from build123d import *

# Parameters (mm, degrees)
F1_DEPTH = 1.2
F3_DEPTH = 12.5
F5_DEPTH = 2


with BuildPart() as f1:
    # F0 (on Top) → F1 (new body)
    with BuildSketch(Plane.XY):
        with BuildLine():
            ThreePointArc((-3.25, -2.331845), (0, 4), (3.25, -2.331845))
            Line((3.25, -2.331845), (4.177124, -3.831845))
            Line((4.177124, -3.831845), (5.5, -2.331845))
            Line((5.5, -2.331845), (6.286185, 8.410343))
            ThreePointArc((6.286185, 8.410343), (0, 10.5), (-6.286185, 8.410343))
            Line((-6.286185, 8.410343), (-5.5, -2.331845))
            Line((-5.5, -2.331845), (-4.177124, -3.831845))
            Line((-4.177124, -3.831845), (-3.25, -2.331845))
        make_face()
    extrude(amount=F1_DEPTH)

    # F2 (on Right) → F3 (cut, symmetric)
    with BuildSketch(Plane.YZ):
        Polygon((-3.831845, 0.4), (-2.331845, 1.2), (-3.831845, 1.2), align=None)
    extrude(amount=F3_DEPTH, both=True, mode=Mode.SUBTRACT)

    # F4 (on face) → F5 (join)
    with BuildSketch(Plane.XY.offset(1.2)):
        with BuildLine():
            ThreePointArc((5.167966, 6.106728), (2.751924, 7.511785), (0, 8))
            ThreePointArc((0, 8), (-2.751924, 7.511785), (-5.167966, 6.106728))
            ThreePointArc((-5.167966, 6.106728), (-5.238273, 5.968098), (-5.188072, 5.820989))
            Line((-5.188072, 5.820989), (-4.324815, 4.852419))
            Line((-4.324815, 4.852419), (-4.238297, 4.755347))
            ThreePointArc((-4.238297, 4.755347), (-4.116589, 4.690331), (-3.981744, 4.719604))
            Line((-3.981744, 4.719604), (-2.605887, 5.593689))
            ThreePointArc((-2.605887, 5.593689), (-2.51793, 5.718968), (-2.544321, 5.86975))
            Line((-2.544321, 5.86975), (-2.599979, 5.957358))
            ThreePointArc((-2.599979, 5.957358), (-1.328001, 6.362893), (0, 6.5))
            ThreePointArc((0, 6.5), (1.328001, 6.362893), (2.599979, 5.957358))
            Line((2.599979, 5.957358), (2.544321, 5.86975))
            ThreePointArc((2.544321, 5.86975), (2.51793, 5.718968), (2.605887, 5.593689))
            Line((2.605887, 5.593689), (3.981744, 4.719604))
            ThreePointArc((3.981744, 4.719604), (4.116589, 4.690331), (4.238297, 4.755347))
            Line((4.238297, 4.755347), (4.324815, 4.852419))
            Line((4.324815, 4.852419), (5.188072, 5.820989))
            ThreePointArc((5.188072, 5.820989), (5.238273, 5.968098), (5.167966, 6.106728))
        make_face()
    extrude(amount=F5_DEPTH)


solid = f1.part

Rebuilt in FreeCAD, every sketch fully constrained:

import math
import FreeCAD as App
import Part
import Sketcher
Q = App.Units.Quantity


def add_polygon(sketch, points):
    """Adds a closed chain of lines whose ends are joined by coincident constraints."""
    first, n = sketch.GeometryCount, len(points)
    for a, b in zip(points, points[1:] + points[:1]):
        sketch.addGeometry(Part.LineSegment(App.Vector(*a, 0), App.Vector(*b, 0)), False)
    for i in range(n):
        sketch.addConstraint(Sketcher.Constraint("Coincident", first + i, 2, first + (i + 1) % n, 1))

doc = App.newDocument("Part")
params = doc.addObject("Spreadsheet::Sheet", "Params")
for row, (alias, value) in enumerate([
    ("sketch1_radius", "4 mm"),
    ("sketch1_length", "2 mm"),
    ("pad1_length", "1.2 mm"),
    ("sketch2_width", "1.5 mm"),
    ("sketch2_height", "0.8 mm"),
    ("pocket1_length", "25 mm"),
    ("sketch3_radius", "8 mm"),
    ("sketch3_radius2", "0.200001 mm"),
    ("pad2_length", "2 mm"),
], start=1):
    params.set(f"A{row}", alias)
    params.set(f"B{row}", "=" + value)
    params.setAlias(f"B{row}", alias)

body = doc.addObject("PartDesign::Body", "Body")

sketch1 = doc.addObject("Sketcher::SketchObject", "Sketch")
body.addObject(sketch1)
sketch1.AttachmentSupport = (doc.XY_Plane, [""])
sketch1.MapMode = "FlatFace"
sketch1.addGeometry(Part.ArcOfCircle(Part.Circle(App.Vector(0, 0, 0), App.Vector(0, 0, 1), 4), math.radians(-36), math.radians(216)), False)
sketch1.addGeometry(Part.LineSegment(App.Vector(3.2, -2.3, 0), App.Vector(4.2, -3.8, 0)), False)
sketch1.addGeometry(Part.LineSegment(App.Vector(4.2, -3.8, 0), App.Vector(5.5, -2.3, 0)), False)
sketch1.addGeometry(Part.LineSegment(App.Vector(5.5, -2.3, 0), App.Vector(6.3, 8.4, 0)), False)
sketch1.addGeometry(Part.ArcOfCircle(Part.Circle(App.Vector(0, 0, 0), App.Vector(0, 0, 1), 10.5), math.radians(53), math.radians(127)), False)
sketch1.addGeometry(Part.LineSegment(App.Vector(-6.3, 8.4, 0), App.Vector(-5.5, -2.3, 0)), False)
sketch1.addGeometry(Part.LineSegment(App.Vector(-5.5, -2.3, 0), App.Vector(-4.2, -3.8, 0)), False)
sketch1.addGeometry(Part.LineSegment(App.Vector(-4.2, -3.8, 0), App.Vector(-3.2, -2.3, 0)), False)
sketch1.addConstraint(Sketcher.Constraint("Coincident", 0, 1, 1, 1))
sketch1.addConstraint(Sketcher.Constraint("Coincident", 1, 2, 2, 1))
sketch1.addConstraint(Sketcher.Constraint("Coincident", 2, 2, 3, 1))
sketch1.addConstraint(Sketcher.Constraint("Coincident", 3, 2, 4, 1))
sketch1.addConstraint(Sketcher.Constraint("Coincident", 4, 2, 5, 1))
sketch1.addConstraint(Sketcher.Constraint("Coincident", 5, 2, 6, 1))
sketch1.addConstraint(Sketcher.Constraint("Coincident", 6, 2, 7, 1))
sketch1.addConstraint(Sketcher.Constraint("Coincident", 7, 2, 0, 2))
sketch1.addConstraint(Sketcher.Constraint("Coincident", 0, 3, -1, 1))
sketch1.addConstraint(Sketcher.Constraint("Coincident", 4, 3, -1, 1))
sketch1.addConstraint(Sketcher.Constraint("Symmetric", 2, 2, 5, 2, -2))
sketch1.addConstraint(Sketcher.Constraint("Symmetric", 1, 2, 6, 2, -2))
sketch1.addConstraint(Sketcher.Constraint("Horizontal", 0, 1, 2, 2))
sketch1.addConstraint(Sketcher.Constraint("Horizontal", 3, 2, 4, 2))
sketch1.addConstraint(Sketcher.Constraint("Horizontal", 5, 2, 7, 2))
sketch1.addConstraint(Sketcher.Constraint("Radius", 0, Q("4 mm")))
sketch1.addConstraint(Sketcher.Constraint("Distance", 2, Q("2 mm")))
sketch1.addConstraint(Sketcher.Constraint("DistanceX", -1, 1, 2, 2, Q("5.5 mm")))
sketch1.addConstraint(Sketcher.Constraint("DistanceY", 1, 2, 0, 1, Q("1.5 mm")))
sketch1.addConstraint(Sketcher.Constraint("DistanceX", 7, 2, 0, 1, Q("6.5 mm")))
sketch1.addConstraint(Sketcher.Constraint("Radius", 4, Q("10.499998 mm")))
sketch1.addConstraint(Sketcher.Constraint("Distance", 3, Q("10.770919 mm")))
sketch1.setExpression("Constraints[15]", "Params.sketch1_radius")
sketch1.setExpression("Constraints[16]", "Params.sketch1_length")
pad1 = doc.addObject("PartDesign::Pad", "Pad")
body.addObject(pad1)
pad1.Profile = sketch1
pad1.setExpression("Length", "Params.pad1_length")

sketch2 = doc.addObject("Sketcher::SketchObject", "Sketch001")
body.addObject(sketch2)
sketch2.AttachmentSupport = (doc.YZ_Plane, [""])
sketch2.MapMode = "FlatFace"
add_polygon(sketch2, [(-3.8, 0.4), (-2.3, 1.2), (-3.8, 1.2)])
sketch2.addConstraint(Sketcher.Constraint("Horizontal", 1))
sketch2.addConstraint(Sketcher.Constraint("Vertical", 2))
sketch2.addConstraint(Sketcher.Constraint("DistanceX", 1, 2, 1, 1, Q("1.5 mm")))
sketch2.addConstraint(Sketcher.Constraint("DistanceY", 2, 2, 2, 1, Q("0.8 mm")))
sketch2.addConstraint(Sketcher.Constraint("DistanceY", -1, 1, 0, 2, Q("1.2 mm")))
sketch2.addConstraint(Sketcher.Constraint("DistanceX", 0, 2, -1, 1, Q("2.331845 mm")))
sketch2.setExpression("Constraints[5]", "Params.sketch2_width")
sketch2.setExpression("Constraints[6]", "Params.sketch2_height")
pocket1 = doc.addObject("PartDesign::Pocket", "Pocket")
body.addObject(pocket1)
pocket1.Profile = sketch2
pocket1.setExpression("Length", "Params.pocket1_length")
pocket1.Midplane = True

sketch3 = doc.addObject("Sketcher::SketchObject", "Sketch002")
body.addObject(sketch3)
sketch3.AttachmentSupport = (doc.XY_Plane, [""])
sketch3.MapMode = "FlatFace"
sketch3.AttachmentOffset = App.Placement(App.Vector(0, 0, 1.2), App.Rotation())
sketch3.addGeometry(Part.ArcOfCircle(Part.Circle(App.Vector(0, 0, 0), App.Vector(0, 0, 1), 8), math.radians(50), math.radians(90)), False)
sketch3.addGeometry(Part.ArcOfCircle(Part.Circle(App.Vector(0, 0, 0), App.Vector(0, 0, 1), 8), math.radians(90), math.radians(130)), False)
sketch3.addGeometry(Part.ArcOfCircle(Part.Circle(App.Vector(-5.04, 5.95, 0), App.Vector(0, 0, 1), 0.2), math.radians(130), math.radians(222)), False)
sketch3.addGeometry(Part.LineSegment(App.Vector(-5.19, 5.82, 0), App.Vector(-4.32, 4.85, 0)), False)
sketch3.addGeometry(Part.LineSegment(App.Vector(-4.32, 4.85, 0), App.Vector(-4.24, 4.76, 0)), False)
sketch3.addGeometry(Part.ArcOfCircle(Part.Circle(App.Vector(-4.09, 4.89, 0), App.Vector(0, 0, 1), 0.2), math.radians(-138), math.radians(-58)), False)
sketch3.addGeometry(Part.LineSegment(App.Vector(-3.98, 4.72, 0), App.Vector(-2.61, 5.59, 0)), False)
sketch3.addGeometry(Part.ArcOfCircle(Part.Circle(App.Vector(-2.71, 5.76, 0), App.Vector(0, 0, 1), 0.2), math.radians(-58), math.radians(32)), False)
sketch3.addGeometry(Part.LineSegment(App.Vector(-2.54, 5.87, 0), App.Vector(-2.6, 5.96, 0)), False)
sketch3.addGeometry(Part.ArcOfCircle(Part.Circle(App.Vector(0, 0, 0), App.Vector(0, 0, 1), 6.5), math.radians(90), math.radians(114)), False)
sketch3.addGeometry(Part.ArcOfCircle(Part.Circle(App.Vector(0, 0, 0), App.Vector(0, 0, 1), 6.5), math.radians(66), math.radians(90)), False)
sketch3.addGeometry(Part.LineSegment(App.Vector(2.6, 5.96, 0), App.Vector(2.54, 5.87, 0)), False)
sketch3.addGeometry(Part.ArcOfCircle(Part.Circle(App.Vector(2.71, 5.76, 0), App.Vector(0, 0, 1), 0.2), math.radians(148), math.radians(238)), False)
sketch3.addGeometry(Part.LineSegment(App.Vector(2.61, 5.59, 0), App.Vector(3.98, 4.72, 0)), False)
sketch3.addGeometry(Part.ArcOfCircle(Part.Circle(App.Vector(4.09, 4.89, 0), App.Vector(0, 0, 1), 0.2), math.radians(-122), math.radians(-42)), False)
sketch3.addGeometry(Part.LineSegment(App.Vector(4.24, 4.76, 0), App.Vector(4.32, 4.85, 0)), False)
sketch3.addGeometry(Part.LineSegment(App.Vector(4.32, 4.85, 0), App.Vector(5.19, 5.82, 0)), False)
sketch3.addGeometry(Part.ArcOfCircle(Part.Circle(App.Vector(5.04, 5.95, 0), App.Vector(0, 0, 1), 0.2), math.radians(-42), math.radians(50)), False)
sketch3.addConstraint(Sketcher.Constraint("Tangent", 0, 2, 1, 1))
sketch3.addConstraint(Sketcher.Constraint("Coincident", 1, 2, 2, 1))
sketch3.addConstraint(Sketcher.Constraint("Coincident", 2, 2, 3, 1))
sketch3.addConstraint(Sketcher.Constraint("Coincident", 3, 2, 4, 1))
sketch3.addConstraint(Sketcher.Constraint("Coincident", 4, 2, 5, 1))
sketch3.addConstraint(Sketcher.Constraint("Coincident", 5, 2, 6, 1))
sketch3.addConstraint(Sketcher.Constraint("Tangent", 6, 2, 7, 1))
sketch3.addConstraint(Sketcher.Constraint("Coincident", 7, 2, 8, 1))
sketch3.addConstraint(Sketcher.Constraint("Coincident", 8, 2, 9, 2))
sketch3.addConstraint(Sketcher.Constraint("Tangent", 9, 1, 10, 2))
sketch3.addConstraint(Sketcher.Constraint("Coincident", 10, 1, 11, 1))
sketch3.addConstraint(Sketcher.Constraint("Coincident", 11, 2, 12, 1))
sketch3.addConstraint(Sketcher.Constraint("Tangent", 12, 2, 13, 1))
sketch3.addConstraint(Sketcher.Constraint("Coincident", 13, 2, 14, 1))
sketch3.addConstraint(Sketcher.Constraint("Coincident", 14, 2, 15, 1))
sketch3.addConstraint(Sketcher.Constraint("Coincident", 15, 2, 16, 1))
sketch3.addConstraint(Sketcher.Constraint("Coincident", 16, 2, 17, 1))
sketch3.addConstraint(Sketcher.Constraint("Coincident", 17, 2, 0, 1))
sketch3.addConstraint(Sketcher.Constraint("Coincident", 0, 3, -1, 1))
sketch3.addConstraint(Sketcher.Constraint("Equal", 0, 1))
sketch3.addConstraint(Sketcher.Constraint("Equal", 2, 5))
sketch3.addConstraint(Sketcher.Constraint("Equal", 5, 7))
sketch3.addConstraint(Sketcher.Constraint("Equal", 9, 10))
sketch3.addConstraint(Sketcher.Constraint("Equal", 7, 12))
sketch3.addConstraint(Sketcher.Constraint("Equal", 12, 14))
sketch3.addConstraint(Sketcher.Constraint("Equal", 14, 17))
sketch3.addConstraint(Sketcher.Constraint("Symmetric", 7, 3, 12, 3, -2))
sketch3.addConstraint(Sketcher.Constraint("Symmetric", 5, 3, 14, 3, -2))
sketch3.addConstraint(Sketcher.Constraint("Symmetric", 8, 2, 10, 1, -2))
sketch3.addConstraint(Sketcher.Constraint("Symmetric", 3, 2, 15, 2, -2))
sketch3.addConstraint(Sketcher.Constraint("Symmetric", 2, 2, 16, 2, -2))
sketch3.addConstraint(Sketcher.Constraint("PointOnObject", 0, 2, -2))
sketch3.addConstraint(Sketcher.Constraint("PointOnObject", 9, 1, -2))
sketch3.addConstraint(Sketcher.Constraint("Horizontal", 7, 2, 11, 2))
sketch3.addConstraint(Sketcher.Constraint("Horizontal", 5, 2, 13, 2))
sketch3.addConstraint(Sketcher.Constraint("Horizontal", 4, 2, 14, 2))
sketch3.addConstraint(Sketcher.Constraint("Horizontal", 1, 2, 17, 2))
sketch3.addConstraint(Sketcher.Constraint("Radius", 0, Q("8 mm")))
sketch3.addConstraint(Sketcher.Constraint("Radius", 2, Q("0.200001 mm")))
sketch3.addConstraint(Sketcher.Constraint("DistanceY", -1, 1, 9, 1, Q("6.5 mm")))
sketch3.addConstraint(Sketcher.Constraint("Radius", 9, Q("6.500031 mm")))
sketch3.addConstraint(Sketcher.Constraint("DistanceY", 3, 2, 5, 3, Q("0.035999 mm")))
sketch3.addConstraint(Sketcher.Constraint("DistanceX", 7, 3, 17, 3, Q("7.7519 mm")))
sketch3.addConstraint(Sketcher.Constraint("DistanceX", 1, 2, 2, 3, Q("0.1292 mm")))
sketch3.addConstraint(Sketcher.Constraint("DistanceY", 17, 3, 10, 1, Q("0.003298 mm")))
sketch3.addConstraint(Sketcher.Constraint("DistanceY", 13, 2, 12, 3, Q("1.042898 mm")))
sketch3.addConstraint(Sketcher.Constraint("DistanceY", -1, 1, 2, 3, Q("5.95406 mm")))
sketch3.addConstraint(Sketcher.Constraint("DistanceX", 5, 3, -1, 1, Q("4.088991 mm")))
sketch3.addConstraint(Sketcher.Constraint("DistanceY", -1, 1, 5, 3, Q("4.888418 mm")))
sketch3.addConstraint(Sketcher.Constraint("DistanceX", 2, 2, -1, 1, Q("5.188072 mm")))
sketch3.addConstraint(Sketcher.Constraint("DistanceY", -1, 1, 6, 2, Q("5.593689 mm")))
sketch3.addConstraint(Sketcher.Constraint("DistanceX", 7, 2, -1, 1, Q("2.544321 mm")))
sketch3.addConstraint(Sketcher.Constraint("DistanceX", 2, 3, 3, 2, Q("0.713951 mm")))
sketch3.addConstraint(Sketcher.Constraint("DistanceY", 4, 2, 3, 2, Q("0.097072 mm")))
sketch3.setExpression("Constraints[37]", "Params.sketch3_radius")
sketch3.setExpression("Constraints[38]", "Params.sketch3_radius2")
pad2 = doc.addObject("PartDesign::Pad", "Pad001")
body.addObject(pad2)
pad2.Profile = sketch3
pad2.setExpression("Length", "Params.pad2_length")

doc.recompute()
